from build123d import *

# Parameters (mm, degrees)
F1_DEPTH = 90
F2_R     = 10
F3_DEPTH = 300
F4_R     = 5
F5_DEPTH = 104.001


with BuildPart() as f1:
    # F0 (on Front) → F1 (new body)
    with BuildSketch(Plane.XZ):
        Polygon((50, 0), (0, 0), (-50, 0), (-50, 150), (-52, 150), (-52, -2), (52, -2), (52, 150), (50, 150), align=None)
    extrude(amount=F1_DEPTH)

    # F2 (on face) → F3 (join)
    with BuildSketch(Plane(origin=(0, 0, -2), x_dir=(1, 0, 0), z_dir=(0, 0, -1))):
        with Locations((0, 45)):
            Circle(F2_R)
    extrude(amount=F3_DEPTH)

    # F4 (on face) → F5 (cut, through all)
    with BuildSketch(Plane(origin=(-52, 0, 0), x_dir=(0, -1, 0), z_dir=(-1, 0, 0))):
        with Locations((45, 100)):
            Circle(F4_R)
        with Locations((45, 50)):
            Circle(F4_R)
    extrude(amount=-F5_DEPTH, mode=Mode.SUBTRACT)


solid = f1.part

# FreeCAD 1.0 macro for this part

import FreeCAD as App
import Part
import Sketcher
from FreeCAD import Vector
Q = App.Units.Quantity

doc = App.newDocument("Part")
body = doc.addObject("PartDesign::Body", "Body")

sketch1 = body.newObject("Sketcher::SketchObject", "Sketch")
sketch1.AttachmentSupport = (doc.getObject("XZ_Plane"), [""])
sketch1.MapMode = "FlatFace"
sketch1.addGeometry(Part.LineSegment(Vector(50, 0, 0), Vector(-50, 0, 0)), False)
sketch1.addGeometry(Part.LineSegment(Vector(-50, 0, 0), Vector(-50, 150, 0)), False)
sketch1.addGeometry(Part.LineSegment(Vector(-50, 150, 0), Vector(-52, 150, 0)), False)
sketch1.addGeometry(Part.LineSegment(Vector(-52, 150, 0), Vector(-52, -2, 0)), False)
sketch1.addGeometry(Part.LineSegment(Vector(-52, -2, 0), Vector(52, -2, 0)), False)
sketch1.addGeometry(Part.LineSegment(Vector(52, -2, 0), Vector(52, 150, 0)), False)
sketch1.addGeometry(Part.LineSegment(Vector(52, 150, 0), Vector(50, 150, 0)), False)
sketch1.addGeometry(Part.LineSegment(Vector(50, 150, 0), Vector(50, 0, 0)), False)
sketch1.addConstraint(Sketcher.Constraint("Coincident", 0, 2, 1, 1))
sketch1.addConstraint(Sketcher.Constraint("Coincident", 1, 2, 2, 1))
sketch1.addConstraint(Sketcher.Constraint("Coincident", 2, 2, 3, 1))
sketch1.addConstraint(Sketcher.Constraint("Coincident", 3, 2, 4, 1))
sketch1.addConstraint(Sketcher.Constraint("Coincident", 4, 2, 5, 1))
sketch1.addConstraint(Sketcher.Constraint("Coincident", 5, 2, 6, 1))
sketch1.addConstraint(Sketcher.Constraint("Coincident", 6, 2, 7, 1))
sketch1.addConstraint(Sketcher.Constraint("Coincident", 7, 2, 0, 1))
sketch1.addConstraint(Sketcher.Constraint("Horizontal", 0))
sketch1.addConstraint(Sketcher.Constraint("Vertical", 1))
sketch1.addConstraint(Sketcher.Constraint("Horizontal", 2))
sketch1.addConstraint(Sketcher.Constraint("Vertical", 3))
sketch1.addConstraint(Sketcher.Constraint("Horizontal", 4))
sketch1.addConstraint(Sketcher.Constraint("Vertical", 5))
sketch1.addConstraint(Sketcher.Constraint("Horizontal", 6))
sketch1.addConstraint(Sketcher.Constraint("Vertical", 7))
sketch1.addConstraint(Sketcher.Constraint("Symmetric", 0, 2, 7, 2, -1, 1))
sketch1.addConstraint(Sketcher.Constraint("Symmetric", 2, 2, 5, 2, -2))
sketch1.addConstraint(Sketcher.Constraint("DistanceX", 0, 2, 0, 1, Q("100 mm")))
sketch1.addConstraint(Sketcher.Constraint("DistanceX", 2, 2, 2, 1, Q("2 mm")))
sketch1.addConstraint(Sketcher.Constraint("DistanceY", 1, 1, 1, 2, Q("150 mm")))
sketch1.addConstraint(Sketcher.Constraint("DistanceY", 3, 2, 3, 1, Q("152 mm")))
pad1 = body.newObject("PartDesign::Pad", "Pad")
pad1.Profile = sketch1
pad1.Length = 90

sketch2 = body.newObject("Sketcher::SketchObject", "Sketch001")
sketch2.AttachmentSupport = (doc.getObject("XY_Plane"), [""])
sketch2.MapMode = "FlatFace"
sketch2.AttachmentOffset = App.Placement(Vector(0, 0, -2), App.Rotation())
sketch2.addGeometry(Part.Circle(Vector(0, -45, 0), Vector(0, 0, 1), 10), False)
sketch2.addConstraint(Sketcher.Constraint("PointOnObject", 0, 3, -2))
sketch2.addConstraint(Sketcher.Constraint("Diameter", 0, Q("20 mm")))
sketch2.addConstraint(Sketcher.Constraint("DistanceY", 0, 3, -1, 1, Q("45 mm")))
pad2 = body.newObject("PartDesign::Pad", "Pad001")
pad2.Profile = sketch2
pad2.Length = 300
pad2.Reversed = True

sketch3 = body.newObject("Sketcher::SketchObject", "Sketch002")
sketch3.AttachmentSupport = (doc.getObject("YZ_Plane"), [""])
sketch3.MapMode = "FlatFace"
sketch3.AttachmentOffset = App.Placement(Vector(0, 0, -52), App.Rotation())
sketch3.addGeometry(Part.Circle(Vector(-45, 100, 0), Vector(0, 0, 1), 5), False)
sketch3.addGeometry(Part.Circle(Vector(-45, 50, 0), Vector(0, 0, 1), 5), False)
sketch3.addConstraint(Sketcher.Constraint("Equal", 0, 1))
sketch3.addConstraint(Sketcher.Constraint("Vertical", 0, 3, 1, 3))
sketch3.addConstraint(Sketcher.Constraint("Diameter", 0, Q("10 mm")))
sketch3.addConstraint(Sketcher.Constraint("DistanceX", 0, 3, -1, 1, Q("45 mm")))
sketch3.addConstraint(Sketcher.Constraint("DistanceY", -1, 1, 0, 3, Q("100 mm")))
sketch3.addConstraint(Sketcher.Constraint("DistanceY", -1, 1, 1, 3, Q("50 mm")))
pocket1 = body.newObject("PartDesign::Pocket", "Pocket")
pocket1.Profile = sketch3
pocket1.Type = "ThroughAll"
pocket1.Reversed = True

doc.recompute()
